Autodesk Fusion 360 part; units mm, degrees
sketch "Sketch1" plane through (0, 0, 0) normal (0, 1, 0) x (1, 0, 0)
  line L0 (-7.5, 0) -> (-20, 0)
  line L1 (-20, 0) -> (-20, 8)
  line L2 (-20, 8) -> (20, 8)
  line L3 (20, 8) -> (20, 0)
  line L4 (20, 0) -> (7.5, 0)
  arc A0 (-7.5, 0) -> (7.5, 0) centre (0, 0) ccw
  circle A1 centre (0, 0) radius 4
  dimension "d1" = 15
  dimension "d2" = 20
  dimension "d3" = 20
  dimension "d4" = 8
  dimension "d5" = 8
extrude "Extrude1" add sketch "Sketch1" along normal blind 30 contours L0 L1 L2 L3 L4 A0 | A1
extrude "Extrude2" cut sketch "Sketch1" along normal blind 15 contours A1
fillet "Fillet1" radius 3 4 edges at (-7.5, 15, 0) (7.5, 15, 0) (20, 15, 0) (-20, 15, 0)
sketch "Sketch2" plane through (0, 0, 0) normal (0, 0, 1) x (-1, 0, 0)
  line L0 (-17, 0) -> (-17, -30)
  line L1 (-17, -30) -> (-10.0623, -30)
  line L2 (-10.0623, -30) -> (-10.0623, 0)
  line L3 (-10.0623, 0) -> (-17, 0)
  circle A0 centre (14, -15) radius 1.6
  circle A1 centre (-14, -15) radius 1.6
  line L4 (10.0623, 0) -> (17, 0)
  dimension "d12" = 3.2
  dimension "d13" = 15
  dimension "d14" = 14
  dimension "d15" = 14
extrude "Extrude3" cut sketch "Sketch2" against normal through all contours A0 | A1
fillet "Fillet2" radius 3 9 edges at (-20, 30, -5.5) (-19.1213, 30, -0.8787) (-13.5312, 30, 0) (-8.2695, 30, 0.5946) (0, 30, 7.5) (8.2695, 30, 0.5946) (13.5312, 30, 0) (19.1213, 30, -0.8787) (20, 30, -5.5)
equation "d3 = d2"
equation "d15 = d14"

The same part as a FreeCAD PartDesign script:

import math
import FreeCAD as App
import Part
import Sketcher

V = App.Vector
Q = App.Units.Quantity


def edges_at(feature, points):
    """Names of the edges that pass closest to the given points."""
    edges = feature.Shape.Edges
    near = lambda p: min(range(len(edges)), key=lambda i: edges[i].distToShape(Part.Vertex(*p))[0])
    return sorted({f"Edge{near(p) + 1}" for p in points})

doc = App.newDocument("Part")
body = doc.addObject("PartDesign::Body", "Body")

# Sketch on XZ plane
sketch1 = body.newObject("Sketcher::SketchObject", "Sketch")
sketch1.AttachmentSupport = (doc.getObject("XZ_Plane"), [""])
sketch1.MapMode = "FlatFace"
sketch1.addGeometry(Part.LineSegment(V(-20, 0, 0), V(-7.5, 0, 0)), False)
sketch1.addGeometry(Part.ArcOfCircle(Part.Circle(V(0, 0, 0), V(0, 0, 1), 7.5), math.radians(0), math.radians(180)), False)
sketch1.addGeometry(Part.LineSegment(V(7.5, 0, 0), V(20, 0, 0)), False)
sketch1.addGeometry(Part.LineSegment(V(20, 0, 0), V(20, -8, 0)), False)
sketch1.addGeometry(Part.LineSegment(V(20, -8, 0), V(-20, -8, 0)), False)
sketch1.addGeometry(Part.LineSegment(V(-20, -8, 0), V(-20, 0, 0)), False)
sketch1.addConstraint(Sketcher.Constraint("Coincident", 0, 2, 1, 2))
sketch1.addConstraint(Sketcher.Constraint("Coincident", 1, 1, 2, 1))
sketch1.addConstraint(Sketcher.Constraint("Coincident", 2, 2, 3, 1))
sketch1.addConstraint(Sketcher.Constraint("Coincident", 3, 2, 4, 1))
sketch1.addConstraint(Sketcher.Constraint("Coincident", 4, 2, 5, 1))
sketch1.addConstraint(Sketcher.Constraint("Coincident", 5, 2, 0, 1))
sketch1.addConstraint(Sketcher.Constraint("Horizontal", 0))
sketch1.addConstraint(Sketcher.Constraint("Horizontal", 2))
sketch1.addConstraint(Sketcher.Constraint("Vertical", 3))
sketch1.addConstraint(Sketcher.Constraint("Horizontal", 4))
sketch1.addConstraint(Sketcher.Constraint("Vertical", 5))
sketch1.addConstraint(Sketcher.Constraint("Coincident", 1, 3, -1, 1))
sketch1.addConstraint(Sketcher.Constraint("Symmetric", 2, 2, 5, 2, -1, 1))
sketch1.addConstraint(Sketcher.Constraint("PointOnObject", 0, 2, -1))
sketch1.addConstraint(Sketcher.Constraint("Radius", 1, Q("7.5 mm")))
sketch1.addConstraint(Sketcher.Constraint("DistanceY", 3, 2, 3, 1, Q("8 mm")))
sketch1.addConstraint(Sketcher.Constraint("DistanceX", -1, 1, 2, 2, Q("20 mm")))
pad1 = body.newObject("PartDesign::Pad", "Pad")
pad1.Profile = sketch1
pad1.Length = 30
pad1.Reversed = True

# Sketch on XZ plane
sketch2 = body.newObject("Sketcher::SketchObject", "Sketch001")
sketch2.AttachmentSupport = (doc.getObject("XZ_Plane"), [""])
sketch2.MapMode = "FlatFace"
sketch2.addGeometry(Part.Circle(V(0, 0, 0), V(0, 0, 1), 4), False)
sketch2.addConstraint(Sketcher.Constraint("Coincident", 0, 3, -1, 1))
sketch2.addConstraint(Sketcher.Constraint("Diameter", 0, Q("8 mm")))
pocket1 = body.newObject("PartDesign::Pocket", "Pocket")
pocket1.Profile = sketch2
pocket1.Length = 15
doc.recompute()

fillet = body.newObject("PartDesign::Fillet", "Fillet")
fillet.Base = (pocket1, edges_at(pocket1, [
    (-7.5, 15, 0),
    (7.5, 15, 0),
    (20, 15, 0),
    (-20, 15, 0),
]))
fillet.Radius = 3

# Sketch on XY plane
sketch3 = body.newObject("Sketcher::SketchObject", "Sketch002")
sketch3.AttachmentSupport = (doc.getObject("XY_Plane"), [""])
sketch3.MapMode = "FlatFace"
sketch3.addGeometry(Part.Circle(V(-14, 15, 0), V(0, 0, 1), 1.6), False)
sketch3.addGeometry(Part.Circle(V(14, 15, 0), V(0, 0, 1), 1.6), False)
sketch3.addConstraint(Sketcher.Constraint("Equal", 0, 1))
sketch3.addConstraint(Sketcher.Constraint("Symmetric", 0, 3, 1, 3, -2))
sketch3.addConstraint(Sketcher.Constraint("Diameter", 0, Q("3.2 mm")))
sketch3.addConstraint(Sketcher.Constraint("DistanceX", 0, 3, -1, 1, Q("14 mm")))
sketch3.addConstraint(Sketcher.Constraint("DistanceY", -1, 1, 0, 3, Q("15 mm")))
pocket2 = body.newObject("PartDesign::Pocket", "Pocket001")
pocket2.Profile = sketch3
pocket2.Type = "ThroughAll"
doc.recompute()

fillet2 = body.newObject("PartDesign::Fillet", "Fillet001")
fillet2.Base = (pocket2, edges_at(pocket2, [
    (-20, 30, -5.5),
    (-19.121, 30, -0.879),
    (-13.531, 30, 0),
    (-8.27, 30, 0.595),
    (0, 30, 7.5),
    (8.27, 30, 0.595),
    (13.531, 30, 0),
    (19.121, 30, -0.879),
    (20, 30, -5.5),
]))
fillet2.Radius = 3

doc.recompute()
